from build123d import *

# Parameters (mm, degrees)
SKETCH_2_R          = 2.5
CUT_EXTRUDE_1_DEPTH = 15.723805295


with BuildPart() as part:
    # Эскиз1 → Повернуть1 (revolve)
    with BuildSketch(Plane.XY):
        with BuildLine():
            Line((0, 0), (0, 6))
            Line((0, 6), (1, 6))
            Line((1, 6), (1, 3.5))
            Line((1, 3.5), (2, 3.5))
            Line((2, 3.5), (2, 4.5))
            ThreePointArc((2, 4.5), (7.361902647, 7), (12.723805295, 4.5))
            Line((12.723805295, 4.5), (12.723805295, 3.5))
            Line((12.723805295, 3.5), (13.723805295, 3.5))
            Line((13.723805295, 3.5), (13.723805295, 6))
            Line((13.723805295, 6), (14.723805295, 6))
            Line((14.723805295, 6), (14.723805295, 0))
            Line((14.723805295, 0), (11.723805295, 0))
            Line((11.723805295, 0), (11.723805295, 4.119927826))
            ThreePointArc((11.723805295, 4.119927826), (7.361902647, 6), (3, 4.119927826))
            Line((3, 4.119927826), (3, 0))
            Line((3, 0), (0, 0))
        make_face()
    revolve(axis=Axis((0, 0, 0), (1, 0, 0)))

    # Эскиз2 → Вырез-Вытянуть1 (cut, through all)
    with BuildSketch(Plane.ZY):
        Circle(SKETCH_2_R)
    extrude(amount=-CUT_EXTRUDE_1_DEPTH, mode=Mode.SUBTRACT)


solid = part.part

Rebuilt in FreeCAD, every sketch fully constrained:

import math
import FreeCAD as App
import Part
import Sketcher

V = App.Vector

doc = App.newDocument("Part")
body = doc.addObject("PartDesign::Body", "Body")

# Sketch on XY plane
sketch1 = doc.addObject("Sketcher::SketchObject", "Sketch")
body.addObject(sketch1)
sketch1.AttachmentSupport = (doc.XY_Plane, [""])
sketch1.MapMode = "FlatFace"
sketch1.addGeometry([
    Part.LineSegment(V(0, 6, 0), V(0, 0, 0)),  # 0
    Part.LineSegment(V(0, 0, 0), V(3, 0, 0)),  # 1
    Part.LineSegment(V(3, 0, 0), V(3, 4.1, 0)),  # 2
    Part.ArcOfCircle(Part.Circle(V(7.4, 0, 0), V(0, 0, 1), 6), math.radians(43), math.radians(137)),  # 3
    Part.LineSegment(V(11.7, 4.1, 0), V(11.7, 0, 0)),  # 4
    Part.LineSegment(V(11.7, 0, 0), V(14.7, 0, 0)),  # 5
    Part.LineSegment(V(14.7, 0, 0), V(14.7, 6, 0)),  # 6
    Part.LineSegment(V(14.7, 6, 0), V(13.7, 6, 0)),  # 7
    Part.LineSegment(V(13.7, 6, 0), V(13.7, 3.5, 0)),  # 8
    Part.LineSegment(V(13.7, 3.5, 0), V(12.7, 3.5, 0)),  # 9
    Part.LineSegment(V(12.7, 3.5, 0), V(12.7, 4.5, 0)),  # 10
    Part.ArcOfCircle(Part.Circle(V(7.4, 0, 0), V(0, 0, 1), 7), math.radians(40), math.radians(140)),  # 11
    Part.LineSegment(V(2, 4.5, 0), V(2, 3.5, 0)),  # 12
    Part.LineSegment(V(2, 3.5, 0), V(1, 3.5, 0)),  # 13
    Part.LineSegment(V(1, 3.5, 0), V(1, 6, 0)),  # 14
    Part.LineSegment(V(1, 6, 0), V(0, 6, 0)),  # 15
], False)
sketch1.addConstraint([
    Sketcher.Constraint("Coincident", 0, 2, 1, 1),
    Sketcher.Constraint("Coincident", 1, 2, 2, 1),
    Sketcher.Constraint("Coincident", 2, 2, 3, 2),
    Sketcher.Constraint("Coincident", 3, 1, 4, 1),
    Sketcher.Constraint("Coincident", 4, 2, 5, 1),
    Sketcher.Constraint("Coincident", 5, 2, 6, 1),
    Sketcher.Constraint("Coincident", 6, 2, 7, 1),
    Sketcher.Constraint("Coincident", 7, 2, 8, 1),
    Sketcher.Constraint("Coincident", 8, 2, 9, 1),
    Sketcher.Constraint("Coincident", 9, 2, 10, 1),
    Sketcher.Constraint("Coincident", 10, 2, 11, 1),
    Sketcher.Constraint("Coincident", 11, 2, 12, 1),
    Sketcher.Constraint("Coincident", 12, 2, 13, 1),
    Sketcher.Constraint("Coincident", 13, 2, 14, 1),
    Sketcher.Constraint("Coincident", 14, 2, 15, 1),
    Sketcher.Constraint("Coincident", 15, 2, 0, 1),
    Sketcher.Constraint("Vertical", 0),
    Sketcher.Constraint("Horizontal", 1),
    Sketcher.Constraint("Vertical", 2),
    Sketcher.Constraint("Vertical", 4),
    Sketcher.Constraint("Horizontal", 5),
    Sketcher.Constraint("Vertical", 6),
    Sketcher.Constraint("Horizontal", 7),
    Sketcher.Constraint("Vertical", 8),
    Sketcher.Constraint("Horizontal", 9),
    Sketcher.Constraint("Vertical", 10),
    Sketcher.Constraint("Vertical", 12),
    Sketcher.Constraint("Horizontal", 13),
    Sketcher.Constraint("Vertical", 14),
    Sketcher.Constraint("Horizontal", 15),
    Sketcher.Constraint("Coincident", 0, 2, -1, 1),
    Sketcher.Constraint("Coincident", 11, 3, 3, 3),
    Sketcher.Constraint("PointOnObject", 3, 3, -1),
    Sketcher.Constraint("PointOnObject", 4, 2, -1),
    Sketcher.Constraint("Horizontal", 2, 2, 3, 1),
    Sketcher.Constraint("Horizontal", 10, 2, 11, 2),
    Sketcher.Constraint("Horizontal", 9, 2, 12, 2),
    Sketcher.Constraint("Horizontal", 7, 2, 14, 2),
    Sketcher.Constraint("Equal", 1, 5),
    Sketcher.Constraint("Equal", 7, 9),
    Sketcher.Constraint("Equal", 9, 13),
    Sketcher.Constraint("Equal", 15, 10),
    Sketcher.Constraint("Radius", 3, 6.0),
    Sketcher.Constraint("Radius", 11, 7.0),
    Sketcher.Constraint("DistanceX", 1, 1, 1, 2, 3.0),
    Sketcher.Constraint("DistanceX", 7, 2, 7, 1, 1.0),
    Sketcher.Constraint("DistanceY", 0, 2, 0, 1, 6.0),
    Sketcher.Constraint("DistanceY", 8, 2, 8, 1, 2.5),
])
revolution = doc.addObject("PartDesign::Revolution", "Revolution")
body.addObject(revolution)
revolution.Profile = sketch1
revolution.ReferenceAxis = (sketch1, ["H_Axis"])
revolution.Angle = 360

# Sketch on YZ plane
sketch2 = doc.addObject("Sketcher::SketchObject", "Sketch001")
body.addObject(sketch2)
sketch2.AttachmentSupport = (doc.YZ_Plane, [""])
sketch2.MapMode = "FlatFace"
sketch2.addGeometry(Part.Circle(V(0, 0, 0), V(0, 0, 1), 2.5), False)
sketch2.addConstraint([
    Sketcher.Constraint("Coincident", 0, 3, -1, 1),
    Sketcher.Constraint("Diameter", 0, 5.0),
])
pocket1 = doc.addObject("PartDesign::Pocket", "Pocket")
body.addObject(pocket1)
pocket1.Profile = sketch2
pocket1.Type = "ThroughAll"
pocket1.Reversed = True

doc.recompute()
